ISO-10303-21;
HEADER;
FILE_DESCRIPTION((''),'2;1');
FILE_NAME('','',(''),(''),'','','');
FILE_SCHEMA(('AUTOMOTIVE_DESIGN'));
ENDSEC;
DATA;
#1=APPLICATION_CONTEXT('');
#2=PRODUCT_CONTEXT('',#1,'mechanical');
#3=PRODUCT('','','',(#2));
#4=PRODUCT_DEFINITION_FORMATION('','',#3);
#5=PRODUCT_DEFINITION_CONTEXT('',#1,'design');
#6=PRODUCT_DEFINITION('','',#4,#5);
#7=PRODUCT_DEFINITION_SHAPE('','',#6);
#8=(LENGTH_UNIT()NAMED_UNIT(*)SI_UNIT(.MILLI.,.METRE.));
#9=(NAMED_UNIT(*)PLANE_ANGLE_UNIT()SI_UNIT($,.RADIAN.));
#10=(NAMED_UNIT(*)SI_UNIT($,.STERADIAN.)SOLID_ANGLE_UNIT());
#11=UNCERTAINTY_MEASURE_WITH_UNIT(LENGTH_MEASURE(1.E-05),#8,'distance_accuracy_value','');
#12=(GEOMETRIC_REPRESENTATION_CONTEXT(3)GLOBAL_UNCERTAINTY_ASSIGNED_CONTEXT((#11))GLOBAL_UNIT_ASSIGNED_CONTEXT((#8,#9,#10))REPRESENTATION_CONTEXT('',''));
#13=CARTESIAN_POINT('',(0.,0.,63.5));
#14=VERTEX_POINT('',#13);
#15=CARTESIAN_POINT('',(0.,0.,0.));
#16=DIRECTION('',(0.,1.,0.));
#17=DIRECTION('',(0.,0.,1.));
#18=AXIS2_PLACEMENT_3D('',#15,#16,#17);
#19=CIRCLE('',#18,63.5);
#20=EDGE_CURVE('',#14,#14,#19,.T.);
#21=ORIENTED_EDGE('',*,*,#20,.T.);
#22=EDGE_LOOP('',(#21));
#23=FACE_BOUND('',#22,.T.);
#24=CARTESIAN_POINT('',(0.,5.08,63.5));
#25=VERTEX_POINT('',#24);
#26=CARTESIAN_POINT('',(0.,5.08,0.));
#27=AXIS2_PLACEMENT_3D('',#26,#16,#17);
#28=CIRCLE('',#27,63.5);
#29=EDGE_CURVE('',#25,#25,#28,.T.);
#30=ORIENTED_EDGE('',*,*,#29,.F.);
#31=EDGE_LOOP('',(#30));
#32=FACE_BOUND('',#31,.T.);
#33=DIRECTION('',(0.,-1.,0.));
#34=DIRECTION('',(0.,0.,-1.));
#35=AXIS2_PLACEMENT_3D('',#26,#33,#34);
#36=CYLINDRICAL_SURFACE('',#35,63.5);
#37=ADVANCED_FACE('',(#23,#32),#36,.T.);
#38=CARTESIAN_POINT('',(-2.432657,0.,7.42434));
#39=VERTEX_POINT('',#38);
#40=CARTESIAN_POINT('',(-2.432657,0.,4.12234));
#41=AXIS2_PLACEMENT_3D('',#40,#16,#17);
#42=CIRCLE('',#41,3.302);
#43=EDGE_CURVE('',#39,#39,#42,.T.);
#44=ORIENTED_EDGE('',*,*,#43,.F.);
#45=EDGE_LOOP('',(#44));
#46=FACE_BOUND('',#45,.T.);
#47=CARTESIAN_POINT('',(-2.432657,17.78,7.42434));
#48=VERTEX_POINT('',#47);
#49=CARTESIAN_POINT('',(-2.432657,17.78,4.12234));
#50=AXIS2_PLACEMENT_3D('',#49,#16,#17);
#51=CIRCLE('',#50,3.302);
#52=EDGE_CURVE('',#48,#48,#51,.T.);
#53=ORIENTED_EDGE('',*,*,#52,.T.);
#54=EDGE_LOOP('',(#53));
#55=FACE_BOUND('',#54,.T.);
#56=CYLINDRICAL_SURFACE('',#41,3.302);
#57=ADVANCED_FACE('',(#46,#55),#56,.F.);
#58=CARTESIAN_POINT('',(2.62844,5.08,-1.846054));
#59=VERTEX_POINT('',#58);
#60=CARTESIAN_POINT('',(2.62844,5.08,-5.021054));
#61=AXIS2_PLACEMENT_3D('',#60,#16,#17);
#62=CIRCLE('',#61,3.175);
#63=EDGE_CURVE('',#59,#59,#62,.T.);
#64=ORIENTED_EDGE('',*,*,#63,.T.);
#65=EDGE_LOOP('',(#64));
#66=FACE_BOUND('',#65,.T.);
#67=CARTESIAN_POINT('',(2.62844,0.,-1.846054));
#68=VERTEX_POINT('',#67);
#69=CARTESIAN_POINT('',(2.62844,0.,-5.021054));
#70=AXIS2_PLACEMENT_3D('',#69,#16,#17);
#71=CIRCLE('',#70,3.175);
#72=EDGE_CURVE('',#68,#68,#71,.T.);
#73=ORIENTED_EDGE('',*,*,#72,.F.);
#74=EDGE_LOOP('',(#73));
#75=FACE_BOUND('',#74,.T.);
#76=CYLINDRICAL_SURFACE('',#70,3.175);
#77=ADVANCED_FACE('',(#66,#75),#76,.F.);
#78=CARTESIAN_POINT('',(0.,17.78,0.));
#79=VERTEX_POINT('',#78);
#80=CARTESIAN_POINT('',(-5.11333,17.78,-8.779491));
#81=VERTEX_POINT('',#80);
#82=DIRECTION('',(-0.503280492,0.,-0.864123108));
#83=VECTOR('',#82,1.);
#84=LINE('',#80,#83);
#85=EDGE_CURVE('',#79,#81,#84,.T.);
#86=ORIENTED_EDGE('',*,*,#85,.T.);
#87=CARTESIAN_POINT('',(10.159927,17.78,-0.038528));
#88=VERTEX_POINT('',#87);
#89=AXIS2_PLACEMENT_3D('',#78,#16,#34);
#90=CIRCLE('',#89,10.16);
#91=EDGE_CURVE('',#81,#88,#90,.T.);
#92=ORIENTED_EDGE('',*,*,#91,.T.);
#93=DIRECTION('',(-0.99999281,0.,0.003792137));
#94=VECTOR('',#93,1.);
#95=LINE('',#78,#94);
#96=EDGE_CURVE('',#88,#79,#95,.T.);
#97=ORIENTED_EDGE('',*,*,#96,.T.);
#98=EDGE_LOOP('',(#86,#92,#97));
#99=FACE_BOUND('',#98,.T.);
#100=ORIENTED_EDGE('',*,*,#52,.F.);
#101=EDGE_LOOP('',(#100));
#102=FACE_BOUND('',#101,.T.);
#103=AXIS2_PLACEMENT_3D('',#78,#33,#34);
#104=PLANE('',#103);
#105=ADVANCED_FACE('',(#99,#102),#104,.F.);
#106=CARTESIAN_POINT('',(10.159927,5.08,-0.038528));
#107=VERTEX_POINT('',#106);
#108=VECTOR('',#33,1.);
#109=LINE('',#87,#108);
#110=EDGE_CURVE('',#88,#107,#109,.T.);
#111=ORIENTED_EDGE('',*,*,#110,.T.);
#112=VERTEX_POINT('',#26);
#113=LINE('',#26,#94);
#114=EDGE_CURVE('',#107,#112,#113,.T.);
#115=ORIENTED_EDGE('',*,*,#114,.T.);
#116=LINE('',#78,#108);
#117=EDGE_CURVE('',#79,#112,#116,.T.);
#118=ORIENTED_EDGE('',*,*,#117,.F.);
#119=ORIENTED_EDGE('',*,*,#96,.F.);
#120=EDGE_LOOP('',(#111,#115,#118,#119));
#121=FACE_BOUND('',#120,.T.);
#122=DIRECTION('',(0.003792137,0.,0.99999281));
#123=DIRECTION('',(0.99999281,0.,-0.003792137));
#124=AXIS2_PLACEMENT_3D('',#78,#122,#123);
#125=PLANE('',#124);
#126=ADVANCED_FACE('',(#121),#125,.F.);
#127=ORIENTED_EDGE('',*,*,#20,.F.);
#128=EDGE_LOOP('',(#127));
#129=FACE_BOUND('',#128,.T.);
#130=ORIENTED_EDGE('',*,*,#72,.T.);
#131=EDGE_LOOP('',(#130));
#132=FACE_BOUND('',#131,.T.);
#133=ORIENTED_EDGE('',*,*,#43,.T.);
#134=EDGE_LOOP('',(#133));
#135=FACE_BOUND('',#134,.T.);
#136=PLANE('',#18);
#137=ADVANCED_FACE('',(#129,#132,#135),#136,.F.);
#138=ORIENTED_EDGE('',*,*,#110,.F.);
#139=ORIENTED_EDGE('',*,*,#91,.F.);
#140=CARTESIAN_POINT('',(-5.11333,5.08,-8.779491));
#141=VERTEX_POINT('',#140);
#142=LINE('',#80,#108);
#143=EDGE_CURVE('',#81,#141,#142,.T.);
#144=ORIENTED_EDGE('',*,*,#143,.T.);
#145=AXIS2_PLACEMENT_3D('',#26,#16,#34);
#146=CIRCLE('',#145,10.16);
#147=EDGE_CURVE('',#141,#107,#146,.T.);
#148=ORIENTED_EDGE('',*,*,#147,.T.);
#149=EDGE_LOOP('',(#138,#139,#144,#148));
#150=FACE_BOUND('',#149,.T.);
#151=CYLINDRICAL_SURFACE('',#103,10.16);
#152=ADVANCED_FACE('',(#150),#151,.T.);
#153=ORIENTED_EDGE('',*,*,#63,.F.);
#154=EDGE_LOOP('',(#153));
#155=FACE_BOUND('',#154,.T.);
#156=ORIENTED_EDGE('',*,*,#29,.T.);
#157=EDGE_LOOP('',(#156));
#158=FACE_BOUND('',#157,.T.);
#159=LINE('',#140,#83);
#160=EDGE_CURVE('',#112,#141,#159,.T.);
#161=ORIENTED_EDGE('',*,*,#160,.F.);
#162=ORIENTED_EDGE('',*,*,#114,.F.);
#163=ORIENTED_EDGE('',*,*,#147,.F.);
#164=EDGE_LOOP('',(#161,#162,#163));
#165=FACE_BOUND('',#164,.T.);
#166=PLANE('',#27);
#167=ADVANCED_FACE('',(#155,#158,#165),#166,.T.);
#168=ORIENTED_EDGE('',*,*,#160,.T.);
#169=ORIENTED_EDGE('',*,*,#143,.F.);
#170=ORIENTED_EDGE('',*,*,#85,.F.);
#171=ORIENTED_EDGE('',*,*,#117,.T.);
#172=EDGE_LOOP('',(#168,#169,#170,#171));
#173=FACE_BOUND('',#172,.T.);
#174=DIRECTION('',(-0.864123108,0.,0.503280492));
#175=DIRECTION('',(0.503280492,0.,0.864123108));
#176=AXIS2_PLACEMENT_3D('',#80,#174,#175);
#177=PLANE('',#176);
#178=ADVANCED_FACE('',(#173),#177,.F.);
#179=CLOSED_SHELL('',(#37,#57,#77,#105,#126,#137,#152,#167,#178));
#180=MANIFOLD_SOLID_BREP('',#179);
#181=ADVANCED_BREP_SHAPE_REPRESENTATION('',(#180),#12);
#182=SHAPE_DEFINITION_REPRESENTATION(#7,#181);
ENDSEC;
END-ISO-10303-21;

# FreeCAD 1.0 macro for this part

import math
import FreeCAD as App
import Part
import Sketcher

V = App.Vector
Q = App.Units.Quantity

doc = App.newDocument("Part")
body = doc.addObject("PartDesign::Body", "Body")

# Sketch on XZ plane
sketch1 = doc.addObject("Sketcher::SketchObject", "Sketch")
body.addObject(sketch1)
sketch1.AttachmentSupport = (doc.XZ_Plane, [""])
sketch1.MapMode = "FlatFace"
sketch1.addGeometry(Part.Circle(V(0, 0, 0), V(0, 0, 1), 64), False)
sketch1.addConstraint(Sketcher.Constraint("Coincident", 0, 3, -1, 1))
sketch1.addConstraint(Sketcher.Constraint("Diameter", 0, Q("5 in")))
pad1 = doc.addObject("PartDesign::Pad", "Pad")
body.addObject(pad1)
pad1.Profile = sketch1
pad1.Length = Q("0.2 in")
pad1.Reversed = True

# Sketch on XZ plane
sketch2 = doc.addObject("Sketcher::SketchObject", "Sketch001")
body.addObject(sketch2)
sketch2.AttachmentSupport = (doc.XZ_Plane, [""])
sketch2.MapMode = "FlatFace"
sketch2.AttachmentOffset = App.Placement(V(0, 0, -0.2 * 25.4), App.Rotation())
sketch2.addGeometry(Part.LineSegment(V(0, 0, 0), V(-5, -9, 0)), False)
sketch2.addGeometry(Part.ArcOfCircle(Part.Circle(V(0, 0, 0), V(0, 0, 1), 10), math.radians(0), math.radians(240)), False)
sketch2.addGeometry(Part.LineSegment(V(10, 0, 0), V(0, 0, 0)), False)
sketch2.addConstraint(Sketcher.Constraint("Coincident", 0, 2, 1, 2))
sketch2.addConstraint(Sketcher.Constraint("Coincident", 1, 1, 2, 1))
sketch2.addConstraint(Sketcher.Constraint("Coincident", 2, 2, 0, 1))
sketch2.addConstraint(Sketcher.Constraint("Coincident", 1, 3, -1, 1))
sketch2.addConstraint(Sketcher.Constraint("Coincident", 2, 2, -1, 1))
sketch2.addConstraint(Sketcher.Constraint("Radius", 1, Q("0.4 in")))
sketch2.addConstraint(Sketcher.Constraint("DistanceX", 0, 2, -1, 1, Q("5.11333 mm")))
sketch2.addConstraint(Sketcher.Constraint("DistanceY", 1, 1, -1, 1, Q("0.038528 mm")))
pad2 = doc.addObject("PartDesign::Pad", "Pad001")
body.addObject(pad2)
pad2.Profile = sketch2
pad2.Length = Q("0.5 in")
pad2.Reversed = True

# Sketch on XZ plane
sketch3 = doc.addObject("Sketcher::SketchObject", "Sketch002")
body.addObject(sketch3)
sketch3.AttachmentSupport = (doc.XZ_Plane, [""])
sketch3.MapMode = "FlatFace"
sketch3.AttachmentOffset = App.Placement(V(0, 0, -0.2 * 25.4), App.Rotation())
sketch3.addGeometry(Part.Circle(V(2.6, -5, 0), V(0, 0, 1), 3.2), False)
sketch3.addConstraint(Sketcher.Constraint("Diameter", 0, Q("0.25 in")))
sketch3.addConstraint(Sketcher.Constraint("DistanceX", -1, 1, 0, 3, Q("2.62844 mm")))
sketch3.addConstraint(Sketcher.Constraint("DistanceY", 0, 3, -1, 1, Q("5.021054 mm")))
pocket1 = doc.addObject("PartDesign::Pocket", "Pocket")
body.addObject(pocket1)
pocket1.Profile = sketch3
pocket1.Type = "ThroughAll"
pocket1.Reversed = True

# Sketch on XZ plane
sketch4 = doc.addObject("Sketcher::SketchObject", "Sketch003")
body.addObject(sketch4)
sketch4.AttachmentSupport = (doc.XZ_Plane, [""])
sketch4.MapMode = "FlatFace"
sketch4.AttachmentOffset = App.Placement(V(0, 0, -0.7 * 25.4), App.Rotation())
sketch4.addGeometry(Part.Circle(V(-2.4, 4.1, 0), V(0, 0, 1), 3.3), False)
sketch4.addConstraint(Sketcher.Constraint("Diameter", 0, Q("0.26 in")))
sketch4.addConstraint(Sketcher.Constraint("DistanceY", -1, 1, 0, 3, Q("4.12234 mm")))
sketch4.addConstraint(Sketcher.Constraint("DistanceX", 0, 3, -1, 1, Q("2.432657 mm")))
pocket2 = doc.addObject("PartDesign::Pocket", "Pocket001")
body.addObject(pocket2)
pocket2.Profile = sketch4
pocket2.Type = "ThroughAll"
pocket2.Reversed = True

doc.recompute()
